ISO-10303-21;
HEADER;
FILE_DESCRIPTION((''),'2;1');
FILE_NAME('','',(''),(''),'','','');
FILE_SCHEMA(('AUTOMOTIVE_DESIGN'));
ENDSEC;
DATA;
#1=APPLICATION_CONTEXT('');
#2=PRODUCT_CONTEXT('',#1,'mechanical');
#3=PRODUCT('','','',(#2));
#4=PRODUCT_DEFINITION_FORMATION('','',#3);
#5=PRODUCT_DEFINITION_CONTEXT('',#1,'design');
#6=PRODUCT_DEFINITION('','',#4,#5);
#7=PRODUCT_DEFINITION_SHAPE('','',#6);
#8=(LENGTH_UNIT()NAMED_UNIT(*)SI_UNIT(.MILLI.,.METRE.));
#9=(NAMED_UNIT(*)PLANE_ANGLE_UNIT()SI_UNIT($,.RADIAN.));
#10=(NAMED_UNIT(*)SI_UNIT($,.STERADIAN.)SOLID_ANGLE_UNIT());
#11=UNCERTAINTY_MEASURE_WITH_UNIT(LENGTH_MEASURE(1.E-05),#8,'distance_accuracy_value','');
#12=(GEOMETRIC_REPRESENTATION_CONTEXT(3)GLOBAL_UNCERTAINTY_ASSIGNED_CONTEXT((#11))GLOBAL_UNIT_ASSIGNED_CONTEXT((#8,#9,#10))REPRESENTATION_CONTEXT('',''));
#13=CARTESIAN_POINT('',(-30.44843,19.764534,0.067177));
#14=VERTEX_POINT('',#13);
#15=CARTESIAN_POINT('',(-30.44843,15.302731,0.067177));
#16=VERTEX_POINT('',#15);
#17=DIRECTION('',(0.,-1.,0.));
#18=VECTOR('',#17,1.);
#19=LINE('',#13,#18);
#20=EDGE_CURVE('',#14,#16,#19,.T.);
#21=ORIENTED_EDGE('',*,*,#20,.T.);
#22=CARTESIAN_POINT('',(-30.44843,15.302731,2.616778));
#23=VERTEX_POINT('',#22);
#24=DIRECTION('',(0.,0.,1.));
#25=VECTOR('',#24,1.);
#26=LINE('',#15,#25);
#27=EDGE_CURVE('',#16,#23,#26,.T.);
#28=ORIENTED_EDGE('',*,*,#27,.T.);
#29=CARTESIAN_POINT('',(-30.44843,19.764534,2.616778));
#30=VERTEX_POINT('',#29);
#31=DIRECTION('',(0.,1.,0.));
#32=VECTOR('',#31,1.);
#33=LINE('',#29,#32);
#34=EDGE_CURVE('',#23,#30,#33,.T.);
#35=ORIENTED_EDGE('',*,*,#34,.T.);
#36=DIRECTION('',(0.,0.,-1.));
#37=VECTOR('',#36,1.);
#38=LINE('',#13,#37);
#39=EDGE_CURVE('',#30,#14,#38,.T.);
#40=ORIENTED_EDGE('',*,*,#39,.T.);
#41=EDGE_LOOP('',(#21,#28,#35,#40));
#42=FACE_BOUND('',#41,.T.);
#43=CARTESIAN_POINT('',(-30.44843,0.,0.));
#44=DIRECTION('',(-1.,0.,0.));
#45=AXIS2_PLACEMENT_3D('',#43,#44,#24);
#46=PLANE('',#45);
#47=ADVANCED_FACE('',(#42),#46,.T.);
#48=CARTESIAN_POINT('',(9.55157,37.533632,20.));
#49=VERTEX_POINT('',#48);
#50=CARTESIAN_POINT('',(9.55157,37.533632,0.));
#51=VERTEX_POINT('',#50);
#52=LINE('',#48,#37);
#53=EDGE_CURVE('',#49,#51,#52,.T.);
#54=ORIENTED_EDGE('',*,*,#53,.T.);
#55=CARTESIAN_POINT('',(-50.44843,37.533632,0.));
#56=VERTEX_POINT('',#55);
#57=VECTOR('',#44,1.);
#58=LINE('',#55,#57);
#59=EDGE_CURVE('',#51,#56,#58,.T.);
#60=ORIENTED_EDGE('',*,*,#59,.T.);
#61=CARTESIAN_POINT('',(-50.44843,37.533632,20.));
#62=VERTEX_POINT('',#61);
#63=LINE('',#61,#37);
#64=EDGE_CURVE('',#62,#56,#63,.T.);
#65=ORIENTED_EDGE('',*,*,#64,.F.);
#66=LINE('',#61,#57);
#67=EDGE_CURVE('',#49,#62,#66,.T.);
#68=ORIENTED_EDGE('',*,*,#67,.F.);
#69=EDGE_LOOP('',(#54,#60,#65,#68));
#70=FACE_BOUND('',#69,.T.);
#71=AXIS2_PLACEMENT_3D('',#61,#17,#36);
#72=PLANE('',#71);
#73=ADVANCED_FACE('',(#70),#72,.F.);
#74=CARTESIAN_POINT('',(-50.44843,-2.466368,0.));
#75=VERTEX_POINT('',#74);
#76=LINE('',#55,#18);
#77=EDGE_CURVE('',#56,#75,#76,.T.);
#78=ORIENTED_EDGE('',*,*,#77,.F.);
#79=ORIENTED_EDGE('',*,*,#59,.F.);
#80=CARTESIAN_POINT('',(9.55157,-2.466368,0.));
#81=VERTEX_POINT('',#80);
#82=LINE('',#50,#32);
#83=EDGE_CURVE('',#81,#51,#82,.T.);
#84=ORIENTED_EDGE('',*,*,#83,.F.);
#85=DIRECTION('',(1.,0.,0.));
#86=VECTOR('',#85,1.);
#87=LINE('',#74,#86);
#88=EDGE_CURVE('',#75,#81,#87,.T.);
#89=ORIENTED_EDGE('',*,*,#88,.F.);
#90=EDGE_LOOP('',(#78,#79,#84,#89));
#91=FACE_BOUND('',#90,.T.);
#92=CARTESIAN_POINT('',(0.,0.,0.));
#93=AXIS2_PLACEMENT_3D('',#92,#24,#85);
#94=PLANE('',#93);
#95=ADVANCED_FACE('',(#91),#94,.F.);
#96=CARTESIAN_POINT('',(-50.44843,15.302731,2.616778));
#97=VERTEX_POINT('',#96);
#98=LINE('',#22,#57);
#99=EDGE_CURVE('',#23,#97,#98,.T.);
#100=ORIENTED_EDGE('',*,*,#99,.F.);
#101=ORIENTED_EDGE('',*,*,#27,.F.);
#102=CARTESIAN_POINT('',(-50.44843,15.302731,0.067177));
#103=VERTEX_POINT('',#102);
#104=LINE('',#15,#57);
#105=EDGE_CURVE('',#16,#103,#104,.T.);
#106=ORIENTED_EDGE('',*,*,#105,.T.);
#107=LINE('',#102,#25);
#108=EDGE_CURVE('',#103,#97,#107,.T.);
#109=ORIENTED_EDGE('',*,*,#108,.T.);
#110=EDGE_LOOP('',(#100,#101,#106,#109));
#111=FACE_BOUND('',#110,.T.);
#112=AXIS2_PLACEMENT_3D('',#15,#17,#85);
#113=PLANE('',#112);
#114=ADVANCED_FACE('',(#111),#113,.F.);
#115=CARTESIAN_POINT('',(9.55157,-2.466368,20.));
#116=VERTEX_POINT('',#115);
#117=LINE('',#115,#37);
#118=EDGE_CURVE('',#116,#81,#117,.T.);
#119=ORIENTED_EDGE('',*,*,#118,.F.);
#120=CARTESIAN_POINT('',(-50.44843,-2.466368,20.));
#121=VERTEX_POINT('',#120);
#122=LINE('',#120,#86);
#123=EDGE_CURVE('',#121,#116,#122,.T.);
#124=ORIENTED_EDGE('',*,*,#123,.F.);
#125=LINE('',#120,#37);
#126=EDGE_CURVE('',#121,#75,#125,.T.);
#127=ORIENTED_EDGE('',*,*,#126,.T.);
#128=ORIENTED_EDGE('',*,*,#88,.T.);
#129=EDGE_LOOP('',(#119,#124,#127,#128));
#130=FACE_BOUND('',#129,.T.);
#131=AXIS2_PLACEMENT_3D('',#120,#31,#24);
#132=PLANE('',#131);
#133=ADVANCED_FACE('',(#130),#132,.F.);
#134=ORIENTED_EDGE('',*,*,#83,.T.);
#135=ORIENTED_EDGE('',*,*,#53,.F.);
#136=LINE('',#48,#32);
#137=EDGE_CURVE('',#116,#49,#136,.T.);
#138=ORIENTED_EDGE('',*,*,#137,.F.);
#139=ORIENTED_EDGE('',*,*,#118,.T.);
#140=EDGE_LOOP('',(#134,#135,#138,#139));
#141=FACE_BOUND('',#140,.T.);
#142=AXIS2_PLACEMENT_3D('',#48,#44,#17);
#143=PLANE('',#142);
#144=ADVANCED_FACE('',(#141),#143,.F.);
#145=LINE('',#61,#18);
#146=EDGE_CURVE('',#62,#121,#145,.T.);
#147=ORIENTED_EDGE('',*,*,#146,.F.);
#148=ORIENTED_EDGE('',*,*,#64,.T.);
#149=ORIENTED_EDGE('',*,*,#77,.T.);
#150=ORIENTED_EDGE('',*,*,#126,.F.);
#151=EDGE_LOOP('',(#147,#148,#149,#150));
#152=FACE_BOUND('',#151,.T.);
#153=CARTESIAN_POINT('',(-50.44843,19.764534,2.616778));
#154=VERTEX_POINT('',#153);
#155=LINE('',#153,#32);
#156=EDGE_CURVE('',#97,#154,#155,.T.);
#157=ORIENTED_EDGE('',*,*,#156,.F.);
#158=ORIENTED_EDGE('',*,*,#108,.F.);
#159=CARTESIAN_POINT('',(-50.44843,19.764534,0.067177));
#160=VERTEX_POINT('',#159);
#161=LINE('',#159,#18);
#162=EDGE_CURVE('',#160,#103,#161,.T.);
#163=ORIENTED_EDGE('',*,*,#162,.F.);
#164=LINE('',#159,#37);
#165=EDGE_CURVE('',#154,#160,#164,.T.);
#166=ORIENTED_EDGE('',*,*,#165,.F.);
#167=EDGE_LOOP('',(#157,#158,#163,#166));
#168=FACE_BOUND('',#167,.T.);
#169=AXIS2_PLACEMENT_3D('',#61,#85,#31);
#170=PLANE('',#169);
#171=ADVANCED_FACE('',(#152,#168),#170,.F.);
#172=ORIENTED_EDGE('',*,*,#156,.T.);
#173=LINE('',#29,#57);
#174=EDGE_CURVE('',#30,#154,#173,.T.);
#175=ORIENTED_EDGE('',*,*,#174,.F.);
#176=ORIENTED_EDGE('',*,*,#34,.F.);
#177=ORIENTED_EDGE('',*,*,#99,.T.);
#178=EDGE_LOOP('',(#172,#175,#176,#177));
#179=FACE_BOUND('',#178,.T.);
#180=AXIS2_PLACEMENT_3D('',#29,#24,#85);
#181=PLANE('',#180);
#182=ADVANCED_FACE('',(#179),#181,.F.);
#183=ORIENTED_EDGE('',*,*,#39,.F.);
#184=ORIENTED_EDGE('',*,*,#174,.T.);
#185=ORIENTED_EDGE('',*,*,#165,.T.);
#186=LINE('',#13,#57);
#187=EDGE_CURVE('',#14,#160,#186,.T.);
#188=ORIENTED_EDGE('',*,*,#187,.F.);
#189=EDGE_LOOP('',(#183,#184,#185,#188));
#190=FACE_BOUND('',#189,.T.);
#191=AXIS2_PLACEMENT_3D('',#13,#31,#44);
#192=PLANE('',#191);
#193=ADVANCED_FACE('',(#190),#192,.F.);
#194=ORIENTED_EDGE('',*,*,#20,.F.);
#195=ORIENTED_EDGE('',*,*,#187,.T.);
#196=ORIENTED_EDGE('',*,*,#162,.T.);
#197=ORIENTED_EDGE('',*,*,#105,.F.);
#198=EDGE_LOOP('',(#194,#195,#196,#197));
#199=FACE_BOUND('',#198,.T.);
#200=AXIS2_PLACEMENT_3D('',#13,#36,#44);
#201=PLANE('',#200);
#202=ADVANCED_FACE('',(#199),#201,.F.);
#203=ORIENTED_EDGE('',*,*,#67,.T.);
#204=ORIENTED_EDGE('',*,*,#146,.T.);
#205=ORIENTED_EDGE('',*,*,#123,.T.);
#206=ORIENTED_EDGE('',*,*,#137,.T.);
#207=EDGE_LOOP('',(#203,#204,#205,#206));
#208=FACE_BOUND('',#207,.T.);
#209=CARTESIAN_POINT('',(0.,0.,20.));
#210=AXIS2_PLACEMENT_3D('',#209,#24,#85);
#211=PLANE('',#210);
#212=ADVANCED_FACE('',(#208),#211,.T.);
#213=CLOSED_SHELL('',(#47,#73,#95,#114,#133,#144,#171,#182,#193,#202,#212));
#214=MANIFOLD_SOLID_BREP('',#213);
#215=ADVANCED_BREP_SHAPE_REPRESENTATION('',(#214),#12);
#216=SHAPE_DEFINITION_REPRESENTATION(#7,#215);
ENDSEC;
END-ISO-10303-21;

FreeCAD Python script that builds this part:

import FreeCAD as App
import Part
import Sketcher

V = App.Vector


def add_polygon(sketch, points):
    """Adds a closed chain of lines whose ends are joined by coincident constraints."""
    first, n = sketch.GeometryCount, len(points)
    for a, b in zip(points, points[1:] + points[:1]):
        sketch.addGeometry(Part.LineSegment(App.Vector(*a, 0), App.Vector(*b, 0)), False)
    for i in range(n):
        sketch.addConstraint(Sketcher.Constraint("Coincident", first + i, 2, first + (i + 1) % n, 1))

doc = App.newDocument("Part")
body = doc.addObject("PartDesign::Body", "Body")

# Sketch on XY plane
sketch1 = body.newObject("Sketcher::SketchObject", "Sketch")
sketch1.AttachmentSupport = (doc.getObject("XY_Plane"), [""])
sketch1.MapMode = "FlatFace"
add_polygon(sketch1, [(-50, 38), (-50, -2), (10, -2), (10, 38)])  # lines 0-3
sketch1.addConstraint(Sketcher.Constraint("Vertical", 0))
sketch1.addConstraint(Sketcher.Constraint("Horizontal", 1))
sketch1.addConstraint(Sketcher.Constraint("Vertical", 2))
sketch1.addConstraint(Sketcher.Constraint("Horizontal", 3))
sketch1.addConstraint(Sketcher.Constraint("DistanceX", 1, 1, 1, 2, 60.0))
sketch1.addConstraint(Sketcher.Constraint("DistanceY", 0, 2, 0, 1, 40.0))
sketch1.addConstraint(Sketcher.Constraint("DistanceX", 0, 2, -1, 1, 50.44843))
sketch1.addConstraint(Sketcher.Constraint("DistanceY", 0, 2, -1, 1, 2.466368))
pad1 = body.newObject("PartDesign::Pad", "Pad")
pad1.Profile = sketch1
pad1.Length = 20

# Sketch on YZ plane
sketch2 = body.newObject("Sketcher::SketchObject", "Sketch001")
sketch2.AttachmentSupport = (doc.getObject("YZ_Plane"), [""])
sketch2.MapMode = "FlatFace"
sketch2.AttachmentOffset = App.Placement(V(0, 0, -50.44843), App.Rotation())
add_polygon(sketch2, [(19.8, 0.1), (15.3, 0.1), (15.3, 2.6), (19.8, 2.6)])  # lines 0-3
sketch2.addConstraint(Sketcher.Constraint("Horizontal", 0))
sketch2.addConstraint(Sketcher.Constraint("Vertical", 1))
sketch2.addConstraint(Sketcher.Constraint("Horizontal", 2))
sketch2.addConstraint(Sketcher.Constraint("Vertical", 3))
sketch2.addConstraint(Sketcher.Constraint("DistanceY", 1, 1, 1, 2, 2.549602))
sketch2.addConstraint(Sketcher.Constraint("DistanceX", 0, 2, 0, 1, 4.461803))
sketch2.addConstraint(Sketcher.Constraint("DistanceX", -1, 1, 0, 2, 15.302731))
sketch2.addConstraint(Sketcher.Constraint("DistanceY", -1, 1, 1, 2, 2.616778))
pocket1 = body.newObject("PartDesign::Pocket", "Pocket")
pocket1.Profile = sketch2
pocket1.Length = 20
pocket1.Reversed = True

doc.recompute()
